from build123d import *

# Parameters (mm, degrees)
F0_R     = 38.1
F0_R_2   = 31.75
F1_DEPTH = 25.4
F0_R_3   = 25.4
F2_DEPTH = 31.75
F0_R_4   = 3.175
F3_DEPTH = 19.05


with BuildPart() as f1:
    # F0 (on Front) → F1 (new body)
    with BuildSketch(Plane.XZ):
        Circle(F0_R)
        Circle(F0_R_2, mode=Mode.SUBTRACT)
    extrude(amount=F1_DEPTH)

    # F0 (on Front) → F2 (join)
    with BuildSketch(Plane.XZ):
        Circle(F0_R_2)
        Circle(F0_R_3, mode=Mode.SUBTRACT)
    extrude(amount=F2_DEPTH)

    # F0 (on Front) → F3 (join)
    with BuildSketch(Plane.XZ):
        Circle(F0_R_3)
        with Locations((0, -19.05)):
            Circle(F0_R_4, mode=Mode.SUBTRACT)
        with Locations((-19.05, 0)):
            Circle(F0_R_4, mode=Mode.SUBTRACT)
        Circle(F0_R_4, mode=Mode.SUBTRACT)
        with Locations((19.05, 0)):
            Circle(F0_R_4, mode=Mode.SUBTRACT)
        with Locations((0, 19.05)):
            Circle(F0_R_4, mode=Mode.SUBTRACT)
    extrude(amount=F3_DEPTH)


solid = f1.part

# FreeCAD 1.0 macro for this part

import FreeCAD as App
import Part
import Sketcher

V = App.Vector
Q = App.Units.Quantity

doc = App.newDocument("Part")
body = doc.addObject("PartDesign::Body", "Body")

sketch1 = body.newObject("Sketcher::SketchObject", "Sketch")
sketch1.AttachmentSupport = (doc.getObject("XZ_Plane"), [""])
sketch1.MapMode = "FlatFace"
sketch1.addGeometry([
    Part.Circle(V(0, 0, 0), V(0, 0, 1), 38.1),
    Part.Circle(V(0, 0, 0), V(0, 0, 1), 31.75),
], False)
sketch1.addConstraint([
    Sketcher.Constraint("Coincident", 0, 3, -1, 1),
    Sketcher.Constraint("Coincident", 1, 3, -1, 1),
    Sketcher.Constraint("Diameter", 0, Q("3 in")),
    Sketcher.Constraint("Diameter", 1, Q("2.5 in")),
])
pad1 = body.newObject("PartDesign::Pad", "Pad")
pad1.Profile = sketch1
pad1.Length = Q("1 in")

sketch2 = body.newObject("Sketcher::SketchObject", "Sketch001")
sketch2.AttachmentSupport = (doc.getObject("XZ_Plane"), [""])
sketch2.MapMode = "FlatFace"
sketch2.addGeometry([
    Part.Circle(V(0, 0, 0), V(0, 0, 1), 31.75),
    Part.Circle(V(0, 0, 0), V(0, 0, 1), 25.4),
], False)
sketch2.addConstraint([
    Sketcher.Constraint("Coincident", 0, 3, -1, 1),
    Sketcher.Constraint("Coincident", 1, 3, -1, 1),
    Sketcher.Constraint("Diameter", 1, Q("2 in")),
    Sketcher.Constraint("Diameter", 0, Q("2.5 in")),
])
pad2 = body.newObject("PartDesign::Pad", "Pad001")
pad2.Profile = sketch2
pad2.Length = Q("1.25 in")

sketch3 = body.newObject("Sketcher::SketchObject", "Sketch002")
sketch3.AttachmentSupport = (doc.getObject("XZ_Plane"), [""])
sketch3.MapMode = "FlatFace"
sketch3.addGeometry([
    Part.Circle(V(0, 0, 0), V(0, 0, 1), 25.4),
    Part.Circle(V(0, -19.05, 0), V(0, 0, 1), 3.175),
    Part.Circle(V(-19.05, 0, 0), V(0, 0, 1), 3.175),
    Part.Circle(V(0, 0, 0), V(0, 0, 1), 3.175),
    Part.Circle(V(19.05, 0, 0), V(0, 0, 1), 3.175),
    Part.Circle(V(0, 19.05, 0), V(0, 0, 1), 3.175),
], False)
sketch3.addConstraint([
    Sketcher.Constraint("Coincident", 0, 3, -1, 1),
    Sketcher.Constraint("Coincident", 3, 3, -1, 1),
    Sketcher.Constraint("Equal", 1, 2),
    Sketcher.Constraint("Equal", 2, 3),
    Sketcher.Constraint("Equal", 3, 4),
    Sketcher.Constraint("Equal", 4, 5),
    Sketcher.Constraint("Symmetric", 2, 3, 4, 3, -1, 1),
    Sketcher.Constraint("Symmetric", 1, 3, 5, 3, -1, 1),
    Sketcher.Constraint("PointOnObject", 1, 3, -2),
    Sketcher.Constraint("PointOnObject", 2, 3, -1),
    Sketcher.Constraint("Diameter", 0, Q("2 in")),
    Sketcher.Constraint("Diameter", 1, Q("0.25 in")),
    Sketcher.Constraint("DistanceX", 2, 3, 4, 3, Q("1.5 in")),
    Sketcher.Constraint("DistanceY", 1, 3, 5, 3, Q("1.5 in")),
])
pad3 = body.newObject("PartDesign::Pad", "Pad002")
pad3.Profile = sketch3
pad3.Length = Q("0.75 in")

doc.recompute()
